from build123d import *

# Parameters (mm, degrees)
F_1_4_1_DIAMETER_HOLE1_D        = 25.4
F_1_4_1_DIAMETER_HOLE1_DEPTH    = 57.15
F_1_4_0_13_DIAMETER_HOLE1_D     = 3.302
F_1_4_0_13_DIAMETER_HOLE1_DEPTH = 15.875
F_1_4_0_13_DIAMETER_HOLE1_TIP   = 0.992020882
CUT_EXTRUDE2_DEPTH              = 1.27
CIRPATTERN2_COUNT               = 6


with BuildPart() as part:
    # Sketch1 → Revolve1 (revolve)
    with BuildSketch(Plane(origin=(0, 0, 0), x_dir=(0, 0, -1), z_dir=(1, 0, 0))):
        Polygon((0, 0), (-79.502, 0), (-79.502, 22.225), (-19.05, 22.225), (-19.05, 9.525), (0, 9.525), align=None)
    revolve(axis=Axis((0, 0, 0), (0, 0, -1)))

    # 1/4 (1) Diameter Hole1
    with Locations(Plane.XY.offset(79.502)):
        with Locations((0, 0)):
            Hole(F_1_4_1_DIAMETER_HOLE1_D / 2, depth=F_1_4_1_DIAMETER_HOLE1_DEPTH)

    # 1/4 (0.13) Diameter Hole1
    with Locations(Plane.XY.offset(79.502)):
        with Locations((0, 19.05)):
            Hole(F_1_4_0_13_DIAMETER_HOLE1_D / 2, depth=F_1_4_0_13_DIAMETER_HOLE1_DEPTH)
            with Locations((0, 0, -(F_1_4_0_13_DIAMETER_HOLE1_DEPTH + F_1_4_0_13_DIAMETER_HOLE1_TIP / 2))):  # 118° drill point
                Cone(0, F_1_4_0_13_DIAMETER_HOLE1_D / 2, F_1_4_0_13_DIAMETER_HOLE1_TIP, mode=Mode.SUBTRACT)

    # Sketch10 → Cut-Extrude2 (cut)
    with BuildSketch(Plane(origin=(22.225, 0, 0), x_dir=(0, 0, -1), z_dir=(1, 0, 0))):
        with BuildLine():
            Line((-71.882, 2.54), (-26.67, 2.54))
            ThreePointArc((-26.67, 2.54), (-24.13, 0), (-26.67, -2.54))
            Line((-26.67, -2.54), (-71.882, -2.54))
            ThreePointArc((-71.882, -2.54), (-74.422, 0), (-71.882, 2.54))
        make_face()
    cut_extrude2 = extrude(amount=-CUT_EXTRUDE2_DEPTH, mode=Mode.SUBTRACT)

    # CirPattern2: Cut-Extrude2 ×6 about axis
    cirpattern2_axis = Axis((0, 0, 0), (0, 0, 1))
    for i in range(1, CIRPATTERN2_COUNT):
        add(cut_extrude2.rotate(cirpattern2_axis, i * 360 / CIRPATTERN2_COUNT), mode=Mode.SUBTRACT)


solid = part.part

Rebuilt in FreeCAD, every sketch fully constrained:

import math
import FreeCAD as App
import Part
import Sketcher
Q = App.Units.Quantity

doc = App.newDocument("Part")
body = doc.addObject("PartDesign::Body", "Body")

sketch1 = body.newObject("Sketcher::SketchObject", "Sketch")
sketch1.AttachmentSupport = (doc.getObject("YZ_Plane"), [""])
sketch1.MapMode = "FlatFace"
sketch1.addGeometry([
    Part.LineSegment(App.Vector(0, 80, 0), App.Vector(0, 0, 0)),
    Part.LineSegment(App.Vector(0, 0, 0), App.Vector(10, 0, 0)),
    Part.LineSegment(App.Vector(10, 0, 0), App.Vector(10, 19, 0)),
    Part.LineSegment(App.Vector(10, 19, 0), App.Vector(22, 19, 0)),
    Part.LineSegment(App.Vector(22, 19, 0), App.Vector(22, 80, 0)),
    Part.LineSegment(App.Vector(22, 80, 0), App.Vector(0, 80, 0)),
], False)
sketch1.addConstraint([
    Sketcher.Constraint("Coincident", 0, 2, 1, 1),
    Sketcher.Constraint("Coincident", 1, 2, 2, 1),
    Sketcher.Constraint("Coincident", 2, 2, 3, 1),
    Sketcher.Constraint("Coincident", 3, 2, 4, 1),
    Sketcher.Constraint("Coincident", 4, 2, 5, 1),
    Sketcher.Constraint("Coincident", 5, 2, 0, 1),
    Sketcher.Constraint("Vertical", 0),
    Sketcher.Constraint("Horizontal", 1),
    Sketcher.Constraint("Vertical", 2),
    Sketcher.Constraint("Horizontal", 3),
    Sketcher.Constraint("Vertical", 4),
    Sketcher.Constraint("Horizontal", 5),
    Sketcher.Constraint("Coincident", 0, 2, -1, 1),
    Sketcher.Constraint("DistanceX", 3, 1, 3, 2, Q("0.5 in")),
    Sketcher.Constraint("DistanceY", 0, 2, 0, 1, Q("3.13 in")),
    Sketcher.Constraint("DistanceY", 2, 1, 2, 2, Q("0.75 in")),
    Sketcher.Constraint("DistanceX", 1, 1, 1, 2, Q("0.375 in")),
])
revolution = body.newObject("PartDesign::Revolution", "Revolution")
revolution.Profile = sketch1
revolution.ReferenceAxis = (sketch1, ["V_Axis"])
revolution.Angle = 360

sketch2 = body.newObject("Sketcher::SketchObject", "Sketch001")
sketch2.AttachmentSupport = (doc.getObject("XY_Plane"), [""])
sketch2.MapMode = "FlatFace"
sketch2.AttachmentOffset = App.Placement(App.Vector(0, 0, 3.13 * 25.4), App.Rotation())
sketch2.addGeometry(Part.Circle(App.Vector(0, 0, 0), App.Vector(0, 0, 1), 13), False)
sketch2.addConstraint([
    Sketcher.Constraint("Coincident", 0, 3, -1, 1),
    Sketcher.Constraint("Diameter", 0, Q("1 in")),
])
doc.recompute()
hole = body.newObject("PartDesign::Hole", "Hole")
hole.Profile = sketch2
hole.ThreadType = "None"
hole.Diameter = Q("1 in")
hole.DepthType = "Dimension"
hole.Depth = Q("2.25 in")
hole.DrillPoint = "Flat"

sketch3 = body.newObject("Sketcher::SketchObject", "Sketch002")
sketch3.AttachmentSupport = (doc.getObject("XY_Plane"), [""])
sketch3.MapMode = "FlatFace"
sketch3.AttachmentOffset = App.Placement(App.Vector(0, 0, 3.13 * 25.4), App.Rotation())
sketch3.addGeometry(Part.Circle(App.Vector(0, 19.1, 0), App.Vector(0, 0, 1), 1.7), False)
sketch3.addConstraint([
    Sketcher.Constraint("PointOnObject", 0, 3, -2),
    Sketcher.Constraint("Diameter", 0, Q("0.13 in")),
    Sketcher.Constraint("DistanceY", -1, 1, 0, 3, Q("0.75 in")),
])
doc.recompute()
hole2 = body.newObject("PartDesign::Hole", "Hole001")
hole2.Profile = sketch3
hole2.ThreadType = "None"
hole2.Diameter = Q("0.13 in")
hole2.DepthType = "Dimension"
hole2.Depth = Q("0.625 in")
hole2.DrillPoint = "Angled"
hole2.DrillPointAngle = 118

sketch4 = body.newObject("Sketcher::SketchObject", "Sketch003")
sketch4.AttachmentSupport = (doc.getObject("YZ_Plane"), [""])
sketch4.MapMode = "FlatFace"
sketch4.AttachmentOffset = App.Placement(App.Vector(0, 0, 0.875 * 25.4), App.Rotation())
sketch4.addGeometry([
    Part.LineSegment(App.Vector(2.5, 26.7, 0), App.Vector(2.5, 71.9, 0)),
    Part.ArcOfCircle(Part.Circle(App.Vector(0, 71.9, 0), App.Vector(0, 0, 1), 2.5), math.radians(0), math.radians(180)),
    Part.LineSegment(App.Vector(-2.5, 71.9, 0), App.Vector(-2.5, 26.7, 0)),
    Part.ArcOfCircle(Part.Circle(App.Vector(0, 26.7, 0), App.Vector(0, 0, 1), 2.5), math.radians(180), math.radians(360)),
], False)
sketch4.addConstraint([
    Sketcher.Constraint("Tangent", 0, 2, 1, 1),
    Sketcher.Constraint("Tangent", 1, 2, 2, 1),
    Sketcher.Constraint("Tangent", 2, 2, 3, 1),
    Sketcher.Constraint("Tangent", 3, 2, 0, 1),
    Sketcher.Constraint("Vertical", 0),
    Sketcher.Constraint("Vertical", 2),
    Sketcher.Constraint("PointOnObject", 1, 3, -2),
    Sketcher.Constraint("Radius", 1, Q("0.1 in")),
    Sketcher.Constraint("DistanceY", 0, 1, 0, 2, Q("1.78 in")),
    Sketcher.Constraint("DistanceY", -1, 1, 1, 3, Q("2.83 in")),
])
pocket1 = body.newObject("PartDesign::Pocket", "Pocket")
pocket1.Profile = sketch4
pocket1.Length = Q("0.05 in")
doc.recompute()

polarpattern = body.newObject("PartDesign::PolarPattern", "PolarPattern")
polarpattern.Originals = [pocket1]
polarpattern.Axis = (doc.getObject("Z_Axis"), [""])
polarpattern.Angle = 360
polarpattern.Occurrences = 6
body.Tip = polarpattern

doc.recompute()
